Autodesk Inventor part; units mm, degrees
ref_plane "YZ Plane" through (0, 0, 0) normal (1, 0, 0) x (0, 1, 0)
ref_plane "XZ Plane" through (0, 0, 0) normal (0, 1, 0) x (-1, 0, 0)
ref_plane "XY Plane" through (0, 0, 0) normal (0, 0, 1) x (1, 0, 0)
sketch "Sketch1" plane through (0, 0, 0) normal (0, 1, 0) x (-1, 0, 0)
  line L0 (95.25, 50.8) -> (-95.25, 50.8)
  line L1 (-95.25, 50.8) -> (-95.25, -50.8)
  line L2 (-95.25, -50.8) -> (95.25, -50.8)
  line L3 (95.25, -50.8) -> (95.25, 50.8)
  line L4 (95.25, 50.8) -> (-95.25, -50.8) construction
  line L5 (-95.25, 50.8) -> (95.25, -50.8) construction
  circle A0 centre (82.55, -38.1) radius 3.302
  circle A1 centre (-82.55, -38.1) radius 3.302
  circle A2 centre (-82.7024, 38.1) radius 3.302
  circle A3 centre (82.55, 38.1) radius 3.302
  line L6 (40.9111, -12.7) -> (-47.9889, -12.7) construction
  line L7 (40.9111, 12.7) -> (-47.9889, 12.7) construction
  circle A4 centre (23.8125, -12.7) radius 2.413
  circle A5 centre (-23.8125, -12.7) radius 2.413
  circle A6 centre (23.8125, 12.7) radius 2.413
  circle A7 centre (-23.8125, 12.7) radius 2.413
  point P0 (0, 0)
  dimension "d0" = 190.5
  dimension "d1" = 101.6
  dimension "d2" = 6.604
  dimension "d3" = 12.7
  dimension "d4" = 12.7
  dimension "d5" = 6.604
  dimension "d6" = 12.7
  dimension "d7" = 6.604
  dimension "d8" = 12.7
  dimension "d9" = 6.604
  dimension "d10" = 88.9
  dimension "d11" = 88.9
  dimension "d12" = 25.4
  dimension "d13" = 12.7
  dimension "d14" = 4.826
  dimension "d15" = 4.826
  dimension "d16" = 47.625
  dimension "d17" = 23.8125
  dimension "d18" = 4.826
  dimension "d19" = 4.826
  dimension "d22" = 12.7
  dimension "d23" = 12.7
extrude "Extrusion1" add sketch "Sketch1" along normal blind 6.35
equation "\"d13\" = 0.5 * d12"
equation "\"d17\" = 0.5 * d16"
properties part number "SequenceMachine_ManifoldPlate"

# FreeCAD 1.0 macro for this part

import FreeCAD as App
import Part
import Sketcher
from FreeCAD import Vector
Q = App.Units.Quantity

doc = App.newDocument("Part")
body = doc.addObject("PartDesign::Body", "Body")

sketch1 = body.newObject("Sketcher::SketchObject", "Sketch")
sketch1.AttachmentSupport = (doc.getObject("XZ_Plane"), [""])
sketch1.MapMode = "FlatFace"
sketch1.addGeometry([
    Part.LineSegment(Vector(-95.2, -50.8, 0), Vector(-95.2, 50.8, 0)),
    Part.LineSegment(Vector(-95.2, 50.8, 0), Vector(95.2, 50.8, 0)),
    Part.LineSegment(Vector(95.2, 50.8, 0), Vector(95.2, -50.8, 0)),
    Part.LineSegment(Vector(95.2, -50.8, 0), Vector(-95.2, -50.8, 0)),
    Part.Circle(Vector(82.5, -38.1, 0), Vector(0, 0, 1), 3.3),
    Part.Circle(Vector(23.8, -12.7, 0), Vector(0, 0, 1), 2.4),
    Part.Circle(Vector(-82.5, -38.1, 0), Vector(0, 0, 1), 3.3),
    Part.Circle(Vector(-23.8, -12.7, 0), Vector(0, 0, 1), 2.4),
    Part.Circle(Vector(23.8, 12.7, 0), Vector(0, 0, 1), 2.4),
    Part.Circle(Vector(82.7, 38.1, 0), Vector(0, 0, 1), 3.3),
    Part.Circle(Vector(-23.8, 12.7, 0), Vector(0, 0, 1), 2.4),
    Part.Circle(Vector(-82.5, 38.1, 0), Vector(0, 0, 1), 3.3),
], False)
sketch1.addConstraint([
    Sketcher.Constraint("Coincident", 0, 2, 1, 1),
    Sketcher.Constraint("Coincident", 1, 2, 2, 1),
    Sketcher.Constraint("Coincident", 2, 2, 3, 1),
    Sketcher.Constraint("Coincident", 3, 2, 0, 1),
    Sketcher.Constraint("Vertical", 0),
    Sketcher.Constraint("Horizontal", 1),
    Sketcher.Constraint("Vertical", 2),
    Sketcher.Constraint("Horizontal", 3),
    Sketcher.Constraint("Equal", 4, 6),
    Sketcher.Constraint("Equal", 5, 7),
    Sketcher.Constraint("Equal", 7, 8),
    Sketcher.Constraint("Equal", 6, 9),
    Sketcher.Constraint("Equal", 8, 10),
    Sketcher.Constraint("Equal", 9, 11),
    Sketcher.Constraint("Symmetric", 7, 3, 8, 3, -1, 1),
    Sketcher.Constraint("Symmetric", 5, 3, 10, 3, -1, 1),
    Sketcher.Constraint("Symmetric", 4, 3, 11, 3, -1, 1),
    Sketcher.Constraint("Symmetric", 0, 2, 2, 2, -1, 1),
    Sketcher.Constraint("Symmetric", 4, 3, 6, 3, -2),
    Sketcher.Constraint("Symmetric", 5, 3, 7, 3, -2),
    Sketcher.Constraint("Horizontal", 9, 3, 11, 3),
    Sketcher.Constraint("Diameter", 4, Q("0.26 in")),
    Sketcher.Constraint("Diameter", 5, Q("0.19 in")),
    Sketcher.Constraint("DistanceY", 0, 1, 0, 2, Q("4 in")),
    Sketcher.Constraint("DistanceX", 1, 1, 1, 2, Q("7.5 in")),
    Sketcher.Constraint("DistanceY", 4, 3, 5, 3, Q("1 in")),
    Sketcher.Constraint("DistanceY", 5, 3, 8, 3, Q("1 in")),
    Sketcher.Constraint("DistanceX", 0, 2, 11, 3, Q("0.5 in")),
    Sketcher.Constraint("DistanceX", -1, 1, 5, 3, Q("0.9375 in")),
    Sketcher.Constraint("DistanceX", -1, 1, 9, 3, Q("3.256 in")),
])
pad1 = body.newObject("PartDesign::Pad", "Pad")
pad1.Profile = sketch1
pad1.Length = Q("0.25 in")
pad1.Reversed = True

doc.recompute()
